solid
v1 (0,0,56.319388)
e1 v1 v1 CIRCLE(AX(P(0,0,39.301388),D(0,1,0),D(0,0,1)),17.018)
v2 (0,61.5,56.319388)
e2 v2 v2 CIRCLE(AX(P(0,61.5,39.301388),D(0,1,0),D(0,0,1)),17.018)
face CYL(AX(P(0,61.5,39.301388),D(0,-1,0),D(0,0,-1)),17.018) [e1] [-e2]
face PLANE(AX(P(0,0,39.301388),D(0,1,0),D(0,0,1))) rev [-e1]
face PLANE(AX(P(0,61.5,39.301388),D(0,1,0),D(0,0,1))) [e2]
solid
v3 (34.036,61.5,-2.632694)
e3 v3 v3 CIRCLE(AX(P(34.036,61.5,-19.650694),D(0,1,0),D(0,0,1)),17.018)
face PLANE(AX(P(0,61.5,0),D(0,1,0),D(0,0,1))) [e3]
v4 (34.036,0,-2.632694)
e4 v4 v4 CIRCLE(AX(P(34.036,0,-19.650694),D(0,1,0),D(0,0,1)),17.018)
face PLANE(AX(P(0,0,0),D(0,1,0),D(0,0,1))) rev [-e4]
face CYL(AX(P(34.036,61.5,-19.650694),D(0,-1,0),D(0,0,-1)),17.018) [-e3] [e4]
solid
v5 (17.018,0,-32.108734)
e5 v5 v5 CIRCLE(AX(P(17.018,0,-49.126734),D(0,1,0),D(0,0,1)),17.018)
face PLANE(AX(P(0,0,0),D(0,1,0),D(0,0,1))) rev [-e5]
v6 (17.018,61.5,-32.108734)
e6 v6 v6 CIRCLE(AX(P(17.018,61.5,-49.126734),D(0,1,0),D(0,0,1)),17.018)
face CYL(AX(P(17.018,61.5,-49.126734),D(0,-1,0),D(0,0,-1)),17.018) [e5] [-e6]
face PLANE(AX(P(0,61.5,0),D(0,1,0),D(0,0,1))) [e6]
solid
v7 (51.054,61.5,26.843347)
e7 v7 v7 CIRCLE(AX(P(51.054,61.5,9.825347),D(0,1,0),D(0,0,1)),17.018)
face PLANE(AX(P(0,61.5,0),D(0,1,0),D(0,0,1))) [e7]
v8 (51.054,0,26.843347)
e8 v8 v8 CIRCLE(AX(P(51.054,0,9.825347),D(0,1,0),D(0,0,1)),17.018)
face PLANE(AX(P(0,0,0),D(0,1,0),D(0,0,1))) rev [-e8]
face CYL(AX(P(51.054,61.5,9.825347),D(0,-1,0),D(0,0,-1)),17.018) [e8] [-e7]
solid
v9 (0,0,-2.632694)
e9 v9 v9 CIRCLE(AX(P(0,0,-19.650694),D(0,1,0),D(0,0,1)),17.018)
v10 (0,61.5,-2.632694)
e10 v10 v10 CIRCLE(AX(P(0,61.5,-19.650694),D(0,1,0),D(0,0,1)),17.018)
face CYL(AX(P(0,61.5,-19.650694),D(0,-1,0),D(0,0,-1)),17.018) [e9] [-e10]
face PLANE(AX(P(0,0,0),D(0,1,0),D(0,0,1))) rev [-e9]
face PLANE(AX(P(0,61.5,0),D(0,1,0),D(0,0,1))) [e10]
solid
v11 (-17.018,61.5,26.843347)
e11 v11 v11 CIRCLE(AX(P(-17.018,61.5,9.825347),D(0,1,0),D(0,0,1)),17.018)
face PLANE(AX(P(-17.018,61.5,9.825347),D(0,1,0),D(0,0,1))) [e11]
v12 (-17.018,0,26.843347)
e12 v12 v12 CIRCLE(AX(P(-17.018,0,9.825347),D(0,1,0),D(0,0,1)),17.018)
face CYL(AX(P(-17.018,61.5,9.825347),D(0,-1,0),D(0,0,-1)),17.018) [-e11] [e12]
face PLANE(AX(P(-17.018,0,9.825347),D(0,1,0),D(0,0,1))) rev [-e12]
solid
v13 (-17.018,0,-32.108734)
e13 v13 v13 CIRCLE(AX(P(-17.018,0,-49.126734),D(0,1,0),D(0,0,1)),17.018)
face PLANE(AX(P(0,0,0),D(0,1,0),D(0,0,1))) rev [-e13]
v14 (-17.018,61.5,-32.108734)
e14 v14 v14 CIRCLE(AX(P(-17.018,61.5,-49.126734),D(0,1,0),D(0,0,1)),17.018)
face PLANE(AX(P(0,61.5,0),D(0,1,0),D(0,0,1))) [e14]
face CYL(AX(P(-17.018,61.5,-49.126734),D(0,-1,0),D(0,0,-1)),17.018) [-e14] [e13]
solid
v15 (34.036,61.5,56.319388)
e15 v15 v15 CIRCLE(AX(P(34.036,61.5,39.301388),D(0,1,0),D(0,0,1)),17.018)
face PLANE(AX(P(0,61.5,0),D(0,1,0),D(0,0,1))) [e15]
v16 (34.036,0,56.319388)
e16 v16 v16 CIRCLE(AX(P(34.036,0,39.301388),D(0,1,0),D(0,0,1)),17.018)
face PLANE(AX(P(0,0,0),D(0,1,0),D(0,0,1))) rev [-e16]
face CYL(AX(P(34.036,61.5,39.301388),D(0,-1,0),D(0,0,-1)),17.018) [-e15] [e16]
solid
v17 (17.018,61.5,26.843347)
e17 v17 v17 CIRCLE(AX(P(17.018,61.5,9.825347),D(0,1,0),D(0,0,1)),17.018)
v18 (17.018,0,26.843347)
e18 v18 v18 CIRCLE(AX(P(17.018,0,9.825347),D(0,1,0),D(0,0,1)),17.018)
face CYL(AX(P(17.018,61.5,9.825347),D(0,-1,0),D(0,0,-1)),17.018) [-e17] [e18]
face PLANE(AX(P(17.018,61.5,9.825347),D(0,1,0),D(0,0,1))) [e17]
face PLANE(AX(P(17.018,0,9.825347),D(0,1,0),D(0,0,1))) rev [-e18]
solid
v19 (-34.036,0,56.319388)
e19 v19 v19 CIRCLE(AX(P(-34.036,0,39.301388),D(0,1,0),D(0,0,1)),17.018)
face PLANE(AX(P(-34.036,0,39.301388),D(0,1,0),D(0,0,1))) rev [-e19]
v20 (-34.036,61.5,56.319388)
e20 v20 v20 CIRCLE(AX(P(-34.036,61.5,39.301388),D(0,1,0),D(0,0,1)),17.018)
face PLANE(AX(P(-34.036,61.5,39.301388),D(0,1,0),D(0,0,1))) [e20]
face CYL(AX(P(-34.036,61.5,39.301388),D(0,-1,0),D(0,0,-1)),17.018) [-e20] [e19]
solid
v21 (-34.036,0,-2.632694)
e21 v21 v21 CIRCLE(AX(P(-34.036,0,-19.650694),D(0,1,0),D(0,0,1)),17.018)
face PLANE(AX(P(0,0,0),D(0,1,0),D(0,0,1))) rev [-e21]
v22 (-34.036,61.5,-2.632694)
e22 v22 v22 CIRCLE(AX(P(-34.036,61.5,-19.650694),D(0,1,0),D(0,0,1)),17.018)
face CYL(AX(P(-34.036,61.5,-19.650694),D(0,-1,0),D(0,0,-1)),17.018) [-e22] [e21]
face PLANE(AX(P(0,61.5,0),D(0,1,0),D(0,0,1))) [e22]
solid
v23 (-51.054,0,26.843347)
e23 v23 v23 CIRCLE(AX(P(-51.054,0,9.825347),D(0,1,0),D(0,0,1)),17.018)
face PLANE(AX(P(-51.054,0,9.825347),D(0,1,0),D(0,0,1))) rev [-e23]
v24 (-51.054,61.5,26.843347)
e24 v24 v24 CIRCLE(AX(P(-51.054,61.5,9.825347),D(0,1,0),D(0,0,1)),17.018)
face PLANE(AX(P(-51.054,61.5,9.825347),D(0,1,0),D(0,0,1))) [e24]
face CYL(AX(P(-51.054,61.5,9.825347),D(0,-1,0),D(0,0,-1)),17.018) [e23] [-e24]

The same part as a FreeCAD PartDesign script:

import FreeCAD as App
import Part
import Sketcher

doc = App.newDocument("Part")
params = doc.addObject("Spreadsheet::Sheet", "Params")
for row, (alias, value) in enumerate([
    ("pad1_length", "61.5 mm"),
    ("pad2_length", "61.5 mm"),
    ("pad3_length", "61.5 mm"),
    ("pad4_length", "61.5 mm"),
    ("pad5_length", "61.5 mm"),
    ("pad6_length", "61.5 mm"),
    ("pad7_length", "61.5 mm"),
    ("pad8_length", "61.5 mm"),
    ("pad9_length", "61.5 mm"),
    ("pad10_length", "61.5 mm"),
    ("pad11_length", "61.5 mm"),
    ("pad12_length", "61.5 mm"),
], start=1):
    params.set(f"A{row}", alias)
    params.set(f"B{row}", "=" + value)
    params.setAlias(f"B{row}", alias)

body = doc.addObject("PartDesign::Body", "Body")

# Sketch on XZ plane
sketch1 = body.newObject("Sketcher::SketchObject", "Sketch")
sketch1.AttachmentSupport = (doc.getObject("XZ_Plane"), [""])
sketch1.MapMode = "FlatFace"
sketch1.addGeometry(Part.Circle(App.Vector(34, 39, 0), App.Vector(0, 0, 1), 17), False)
sketch1.addConstraint([
    Sketcher.Constraint("Diameter", 0, 34.036),
    Sketcher.Constraint("DistanceX", -1, 1, 0, 3, 34.036),
    Sketcher.Constraint("DistanceY", -1, 1, 0, 3, 39.301388),
])
pad1 = body.newObject("PartDesign::Pad", "Pad")
pad1.Profile = sketch1
pad1.setExpression("Length", "Params.pad1_length")
pad1.Reversed = True
body2 = doc.addObject("PartDesign::Body", "Body001")

# Sketch on XZ plane
sketch2 = body2.newObject("Sketcher::SketchObject", "Sketch001")
sketch2.AttachmentSupport = (doc.getObject("XZ_Plane001"), [""])
sketch2.MapMode = "FlatFace"
sketch2.addGeometry(Part.Circle(App.Vector(51, 10, 0), App.Vector(0, 0, 1), 17), False)
sketch2.addConstraint([
    Sketcher.Constraint("Diameter", 0, 34.036),
    Sketcher.Constraint("DistanceX", -1, 1, 0, 3, 51.054),
    Sketcher.Constraint("DistanceY", -1, 1, 0, 3, 9.825347),
])
pad2 = body2.newObject("PartDesign::Pad", "Pad001")
pad2.Profile = sketch2
pad2.setExpression("Length", "Params.pad2_length")
pad2.Reversed = True
body3 = doc.addObject("PartDesign::Body", "Body002")

# Sketch on XZ plane
sketch3 = body3.newObject("Sketcher::SketchObject", "Sketch002")
sketch3.AttachmentSupport = (doc.getObject("XZ_Plane002"), [""])
sketch3.MapMode = "FlatFace"
sketch3.addGeometry(Part.Circle(App.Vector(34, -20, 0), App.Vector(0, 0, 1), 17), False)
sketch3.addConstraint([
    Sketcher.Constraint("Diameter", 0, 34.036),
    Sketcher.Constraint("DistanceX", -1, 1, 0, 3, 34.036),
    Sketcher.Constraint("DistanceY", 0, 3, -1, 1, 19.650694),
])
pad3 = body3.newObject("PartDesign::Pad", "Pad002")
pad3.Profile = sketch3
pad3.setExpression("Length", "Params.pad3_length")
pad3.Reversed = True
body4 = doc.addObject("PartDesign::Body", "Body003")

# Sketch on XZ plane
sketch4 = body4.newObject("Sketcher::SketchObject", "Sketch003")
sketch4.AttachmentSupport = (doc.getObject("XZ_Plane003"), [""])
sketch4.MapMode = "FlatFace"
sketch4.addGeometry(Part.Circle(App.Vector(17, -49, 0), App.Vector(0, 0, 1), 17), False)
sketch4.addConstraint([
    Sketcher.Constraint("Diameter", 0, 34.036),
    Sketcher.Constraint("DistanceX", -1, 1, 0, 3, 17.018),
    Sketcher.Constraint("DistanceY", 0, 3, -1, 1, 49.126734),
])
pad4 = body4.newObject("PartDesign::Pad", "Pad003")
pad4.Profile = sketch4
pad4.setExpression("Length", "Params.pad4_length")
pad4.Reversed = True
body5 = doc.addObject("PartDesign::Body", "Body004")

# Sketch on XZ plane
sketch5 = body5.newObject("Sketcher::SketchObject", "Sketch004")
sketch5.AttachmentSupport = (doc.getObject("XZ_Plane004"), [""])
sketch5.MapMode = "FlatFace"
sketch5.addGeometry(Part.Circle(App.Vector(-17, -49, 0), App.Vector(0, 0, 1), 17), False)
sketch5.addConstraint([
    Sketcher.Constraint("Diameter", 0, 34.036),
    Sketcher.Constraint("DistanceX", 0, 3, -1, 1, 17.018),
    Sketcher.Constraint("DistanceY", 0, 3, -1, 1, 49.126734),
])
pad5 = body5.newObject("PartDesign::Pad", "Pad004")
pad5.Profile = sketch5
pad5.setExpression("Length", "Params.pad5_length")
pad5.Reversed = True
body6 = doc.addObject("PartDesign::Body", "Body005")

# Sketch on XZ plane
sketch6 = body6.newObject("Sketcher::SketchObject", "Sketch005")
sketch6.AttachmentSupport = (doc.getObject("XZ_Plane005"), [""])
sketch6.MapMode = "FlatFace"
sketch6.addGeometry(Part.Circle(App.Vector(-34, -20, 0), App.Vector(0, 0, 1), 17), False)
sketch6.addConstraint([
    Sketcher.Constraint("Diameter", 0, 34.036),
    Sketcher.Constraint("DistanceX", 0, 3, -1, 1, 34.036),
    Sketcher.Constraint("DistanceY", 0, 3, -1, 1, 19.650694),
])
pad6 = body6.newObject("PartDesign::Pad", "Pad005")
pad6.Profile = sketch6
pad6.setExpression("Length", "Params.pad6_length")
pad6.Reversed = True
body7 = doc.addObject("PartDesign::Body", "Body006")

# Sketch on XZ plane
sketch7 = body7.newObject("Sketcher::SketchObject", "Sketch006")
sketch7.AttachmentSupport = (doc.getObject("XZ_Plane006"), [""])
sketch7.MapMode = "FlatFace"
sketch7.addGeometry(Part.Circle(App.Vector(0, -20, 0), App.Vector(0, 0, 1), 17), False)
sketch7.addConstraint([
    Sketcher.Constraint("PointOnObject", 0, 3, -2),
    Sketcher.Constraint("Diameter", 0, 34.036),
    Sketcher.Constraint("DistanceY", 0, 3, -1, 1, 19.650694),
])
pad7 = body7.newObject("PartDesign::Pad", "Pad006")
pad7.Profile = sketch7
pad7.setExpression("Length", "Params.pad7_length")
pad7.Reversed = True
body8 = doc.addObject("PartDesign::Body", "Body007")

# Sketch on XZ plane
sketch8 = body8.newObject("Sketcher::SketchObject", "Sketch007")
sketch8.AttachmentSupport = (doc.getObject("XZ_Plane007"), [""])
sketch8.MapMode = "FlatFace"
sketch8.addGeometry(Part.Circle(App.Vector(-17, 10, 0), App.Vector(0, 0, 1), 17), False)
sketch8.addConstraint([
    Sketcher.Constraint("Diameter", 0, 34.036),
    Sketcher.Constraint("DistanceX", 0, 3, -1, 1, 17.018),
    Sketcher.Constraint("DistanceY", -1, 1, 0, 3, 9.825347),
])
pad8 = body8.newObject("PartDesign::Pad", "Pad007")
pad8.Profile = sketch8
pad8.setExpression("Length", "Params.pad8_length")
pad8.Reversed = True
body9 = doc.addObject("PartDesign::Body", "Body008")

# Sketch on XZ plane
sketch9 = body9.newObject("Sketcher::SketchObject", "Sketch008")
sketch9.AttachmentSupport = (doc.getObject("XZ_Plane008"), [""])
sketch9.MapMode = "FlatFace"
sketch9.addGeometry(Part.Circle(App.Vector(-51, 10, 0), App.Vector(0, 0, 1), 17), False)
sketch9.addConstraint([
    Sketcher.Constraint("Diameter", 0, 34.036),
    Sketcher.Constraint("DistanceX", 0, 3, -1, 1, 51.054),
    Sketcher.Constraint("DistanceY", -1, 1, 0, 3, 9.825347),
])
pad9 = body9.newObject("PartDesign::Pad", "Pad008")
pad9.Profile = sketch9
pad9.setExpression("Length", "Params.pad9_length")
pad9.Reversed = True
body10 = doc.addObject("PartDesign::Body", "Body009")

# Sketch on XZ plane
sketch10 = body10.newObject("Sketcher::SketchObject", "Sketch009")
sketch10.AttachmentSupport = (doc.getObject("XZ_Plane009"), [""])
sketch10.MapMode = "FlatFace"
sketch10.addGeometry(Part.Circle(App.Vector(-34, 39, 0), App.Vector(0, 0, 1), 17), False)
sketch10.addConstraint([
    Sketcher.Constraint("Diameter", 0, 34.036),
    Sketcher.Constraint("DistanceX", 0, 3, -1, 1, 34.036),
    Sketcher.Constraint("DistanceY", -1, 1, 0, 3, 39.301388),
])
pad10 = body10.newObject("PartDesign::Pad", "Pad009")
pad10.Profile = sketch10
pad10.setExpression("Length", "Params.pad10_length")
pad10.Reversed = True
body11 = doc.addObject("PartDesign::Body", "Body010")

# Sketch on XZ plane
sketch11 = body11.newObject("Sketcher::SketchObject", "Sketch010")
sketch11.AttachmentSupport = (doc.getObject("XZ_Plane010"), [""])
sketch11.MapMode = "FlatFace"
sketch11.addGeometry(Part.Circle(App.Vector(0, 39, 0), App.Vector(0, 0, 1), 17), False)
sketch11.addConstraint([
    Sketcher.Constraint("PointOnObject", 0, 3, -2),
    Sketcher.Constraint("Diameter", 0, 34.036),
    Sketcher.Constraint("DistanceY", -1, 1, 0, 3, 39.301388),
])
pad11 = body11.newObject("PartDesign::Pad", "Pad010")
pad11.Profile = sketch11
pad11.setExpression("Length", "Params.pad11_length")
pad11.Reversed = True
body12 = doc.addObject("PartDesign::Body", "Body011")

# Sketch on XZ plane
sketch12 = body12.newObject("Sketcher::SketchObject", "Sketch011")
sketch12.AttachmentSupport = (doc.getObject("XZ_Plane011"), [""])
sketch12.MapMode = "FlatFace"
sketch12.addGeometry(Part.Circle(App.Vector(17, 10, 0), App.Vector(0, 0, 1), 17), False)
sketch12.addConstraint([
    Sketcher.Constraint("Diameter", 0, 34.036),
    Sketcher.Constraint("DistanceX", -1, 1, 0, 3, 17.018),
    Sketcher.Constraint("DistanceY", -1, 1, 0, 3, 9.825347),
])
pad12 = body12.newObject("PartDesign::Pad", "Pad011")
pad12.Profile = sketch12
pad12.setExpression("Length", "Params.pad12_length")
pad12.Reversed = True

doc.recompute()
